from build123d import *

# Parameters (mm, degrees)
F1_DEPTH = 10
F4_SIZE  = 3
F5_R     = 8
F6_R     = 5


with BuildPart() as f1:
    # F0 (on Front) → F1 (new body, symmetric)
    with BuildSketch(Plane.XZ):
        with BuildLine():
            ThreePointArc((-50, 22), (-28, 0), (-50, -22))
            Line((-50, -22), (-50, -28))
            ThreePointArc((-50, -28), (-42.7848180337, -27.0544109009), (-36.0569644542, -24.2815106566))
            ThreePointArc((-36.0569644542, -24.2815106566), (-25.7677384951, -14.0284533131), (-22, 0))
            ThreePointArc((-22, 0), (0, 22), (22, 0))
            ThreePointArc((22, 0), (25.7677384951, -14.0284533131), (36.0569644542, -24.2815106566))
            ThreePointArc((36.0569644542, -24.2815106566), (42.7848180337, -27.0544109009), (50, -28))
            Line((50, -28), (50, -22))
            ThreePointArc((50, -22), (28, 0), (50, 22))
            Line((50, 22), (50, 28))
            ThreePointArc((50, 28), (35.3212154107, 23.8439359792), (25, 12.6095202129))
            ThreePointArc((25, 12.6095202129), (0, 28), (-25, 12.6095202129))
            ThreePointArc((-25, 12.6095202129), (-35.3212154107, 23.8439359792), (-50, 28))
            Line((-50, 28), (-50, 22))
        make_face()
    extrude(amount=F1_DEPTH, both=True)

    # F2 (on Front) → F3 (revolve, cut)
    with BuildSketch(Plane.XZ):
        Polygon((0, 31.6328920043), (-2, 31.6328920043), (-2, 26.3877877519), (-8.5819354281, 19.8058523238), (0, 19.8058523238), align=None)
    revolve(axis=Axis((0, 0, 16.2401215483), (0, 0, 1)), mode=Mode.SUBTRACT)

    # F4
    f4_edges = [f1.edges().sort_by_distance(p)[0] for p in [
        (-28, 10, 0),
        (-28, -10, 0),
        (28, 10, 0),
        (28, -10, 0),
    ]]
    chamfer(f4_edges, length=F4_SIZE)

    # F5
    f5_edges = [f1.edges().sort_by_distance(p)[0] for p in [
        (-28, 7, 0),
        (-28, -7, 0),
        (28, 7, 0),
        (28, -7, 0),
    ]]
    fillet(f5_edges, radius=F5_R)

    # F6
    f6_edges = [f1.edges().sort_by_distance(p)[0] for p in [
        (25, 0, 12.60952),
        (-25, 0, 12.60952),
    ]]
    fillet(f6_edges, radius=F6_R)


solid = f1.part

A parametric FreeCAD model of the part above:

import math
import FreeCAD as App
import Part
import Sketcher

V = App.Vector
Q = App.Units.Quantity


def edges_at(feature, points):
    """Names of the edges that pass closest to the given points."""
    edges = feature.Shape.Edges
    near = lambda p: min(range(len(edges)), key=lambda i: edges[i].distToShape(Part.Vertex(*p))[0])
    return sorted({f"Edge{near(p) + 1}" for p in points})


def add_polygon(sketch, points):
    """Adds a closed chain of lines whose ends are joined by coincident constraints."""
    first, n = sketch.GeometryCount, len(points)
    for a, b in zip(points, points[1:] + points[:1]):
        sketch.addGeometry(Part.LineSegment(App.Vector(*a, 0), App.Vector(*b, 0)), False)
    for i in range(n):
        sketch.addConstraint(Sketcher.Constraint("Coincident", first + i, 2, first + (i + 1) % n, 1))

doc = App.newDocument("Part")
body = doc.addObject("PartDesign::Body", "Body")

sketch1 = doc.addObject("Sketcher::SketchObject", "Sketch")
body.addObject(sketch1)
sketch1.AttachmentSupport = (doc.XZ_Plane, [""])
sketch1.MapMode = "FlatFace"
sketch1.addGeometry([
    Part.ArcOfCircle(Part.Circle(V(-50, 0, 0), V(0, 0, 1), 22), math.radians(-90), math.radians(90)),
    Part.LineSegment(V(-50, -22, 0), V(-50, -28, 0)),
    Part.ArcOfCircle(Part.Circle(V(-50, 0, 0), V(0, 0, 1), 28), math.radians(-90), math.radians(-60)),
    Part.ArcOfCircle(Part.Circle(V(-50, 0, 0), V(0, 0, 1), 28), math.radians(-60), math.radians(0)),
    Part.ArcOfCircle(Part.Circle(V(0, 0, 0), V(0, 0, 1), 22), math.radians(0), math.radians(180)),
    Part.ArcOfCircle(Part.Circle(V(50, 0, 0), V(0, 0, 1), 28), math.radians(180), math.radians(240)),
    Part.ArcOfCircle(Part.Circle(V(50, 0, 0), V(0, 0, 1), 28), math.radians(-120), math.radians(-90)),
    Part.LineSegment(V(50, -28, 0), V(50, -22, 0)),
    Part.ArcOfCircle(Part.Circle(V(50, 0, 0), V(0, 0, 1), 22), math.radians(90), math.radians(270)),
    Part.LineSegment(V(50, 22, 0), V(50, 28, 0)),
    Part.ArcOfCircle(Part.Circle(V(50, 0, 0), V(0, 0, 1), 28), math.radians(90), math.radians(153)),
    Part.ArcOfCircle(Part.Circle(V(0, 0, 0), V(0, 0, 1), 28), math.radians(27), math.radians(153)),
    Part.ArcOfCircle(Part.Circle(V(-50, 0, 0), V(0, 0, 1), 28), math.radians(27), math.radians(90)),
    Part.LineSegment(V(-50, 28, 0), V(-50, 22, 0)),
], False)
sketch1.addConstraint([
    Sketcher.Constraint("Coincident", 0, 1, 1, 1),
    Sketcher.Constraint("Coincident", 1, 2, 2, 1),
    Sketcher.Constraint("Tangent", 2, 2, 3, 1),
    Sketcher.Constraint("Tangent", 3, 2, 4, 2),
    Sketcher.Constraint("Tangent", 4, 1, 5, 1),
    Sketcher.Constraint("Tangent", 5, 2, 6, 1),
    Sketcher.Constraint("Coincident", 6, 2, 7, 1),
    Sketcher.Constraint("Coincident", 7, 2, 8, 2),
    Sketcher.Constraint("Coincident", 8, 1, 9, 1),
    Sketcher.Constraint("Coincident", 9, 2, 10, 1),
    Sketcher.Constraint("Coincident", 10, 2, 11, 1),
    Sketcher.Constraint("Coincident", 11, 2, 12, 1),
    Sketcher.Constraint("Coincident", 12, 2, 13, 1),
    Sketcher.Constraint("Coincident", 13, 2, 0, 2),
    Sketcher.Constraint("Vertical", 1),
    Sketcher.Constraint("Vertical", 7),
    Sketcher.Constraint("Vertical", 9),
    Sketcher.Constraint("Vertical", 13),
    Sketcher.Constraint("Coincident", 4, 3, -1, 1),
    Sketcher.Constraint("Coincident", 11, 3, -1, 1),
    Sketcher.Constraint("Coincident", 2, 3, 0, 3),
    Sketcher.Constraint("Coincident", 8, 3, 5, 3),
    Sketcher.Constraint("Coincident", 10, 3, 5, 3),
    Sketcher.Constraint("Coincident", 12, 3, 0, 3),
    Sketcher.Constraint("Equal", 2, 3),
    Sketcher.Constraint("Equal", 0, 4),
    Sketcher.Constraint("Equal", 3, 5),
    Sketcher.Constraint("Equal", 5, 6),
    Sketcher.Constraint("Equal", 4, 8),
    Sketcher.Constraint("Equal", 6, 10),
    Sketcher.Constraint("Equal", 10, 11),
    Sketcher.Constraint("Equal", 11, 12),
    Sketcher.Constraint("Symmetric", 0, 1, 8, 1, -1, 1),
    Sketcher.Constraint("Symmetric", 2, 2, 5, 2, -2),
    Sketcher.Constraint("Vertical", 12, 3, 0, 1),
    Sketcher.Constraint("Vertical", 10, 3, 6, 2),
    Sketcher.Constraint("Vertical", 1, 2, 12, 2),
    Sketcher.Constraint("Radius", 0, 22.0),
    Sketcher.Constraint("Radius", 2, 28.0),
    Sketcher.Constraint("DistanceY", 2, 2, -1, 1, 24.281511),
])
pad1 = doc.addObject("PartDesign::Pad", "Pad")
body.addObject(pad1)
pad1.Profile = sketch1
pad1.Length = 20
pad1.Midplane = True

sketch2 = doc.addObject("Sketcher::SketchObject", "Sketch001")
body.addObject(sketch2)
sketch2.AttachmentSupport = (doc.XZ_Plane, [""])
sketch2.MapMode = "FlatFace"
add_polygon(sketch2, [(0, 31.6), (-2, 31.6), (-2, 26.4), (-8.6, 19.8), (0, 19.8)])
sketch2.addConstraint([
    Sketcher.Constraint("Horizontal", 0),
    Sketcher.Constraint("Vertical", 1),
    Sketcher.Constraint("Horizontal", 3),
    Sketcher.Constraint("Vertical", 4),
    Sketcher.Constraint("PointOnObject", 3, 2, -2),
    Sketcher.Constraint("DistanceX", 0, 2, 0, 1, 2.0),
    Sketcher.Constraint("Angle", 2, Q("-135 deg")),
    Sketcher.Constraint("DistanceY", 4, 1, 4, 2, 11.82704),
    Sketcher.Constraint("DistanceX", 3, 1, 3, 2, 8.581935),
    Sketcher.Constraint("DistanceY", -1, 1, 0, 2, 31.632892),
])
groove = doc.addObject("PartDesign::Groove", "Groove")
body.addObject(groove)
groove.Profile = sketch2
groove.ReferenceAxis = (sketch2, ["V_Axis"])
groove.Angle = 360
doc.recompute()

chamfer = doc.addObject("PartDesign::Chamfer", "Chamfer")
body.addObject(chamfer)
chamfer.Base = (groove, edges_at(groove, [
    (-28, 10, 0),
    (-28, -10, 0),
    (28, 10, 0),
    (28, -10, 0),
]))
chamfer.Size = 3
doc.recompute()

fillet = doc.addObject("PartDesign::Fillet", "Fillet")
body.addObject(fillet)
fillet.Base = (chamfer, edges_at(chamfer, [
    (-28, 7, 0),
    (-28, -7, 0),
    (28, 7, 0),
    (28, -7, 0),
]))
fillet.Radius = 8
doc.recompute()

fillet2 = doc.addObject("PartDesign::Fillet", "Fillet001")
body.addObject(fillet2)
fillet2.Base = (fillet, edges_at(fillet, [(25, 0, 12.61), (-25, 0, 12.61)]))
fillet2.Radius = 5

doc.recompute()
